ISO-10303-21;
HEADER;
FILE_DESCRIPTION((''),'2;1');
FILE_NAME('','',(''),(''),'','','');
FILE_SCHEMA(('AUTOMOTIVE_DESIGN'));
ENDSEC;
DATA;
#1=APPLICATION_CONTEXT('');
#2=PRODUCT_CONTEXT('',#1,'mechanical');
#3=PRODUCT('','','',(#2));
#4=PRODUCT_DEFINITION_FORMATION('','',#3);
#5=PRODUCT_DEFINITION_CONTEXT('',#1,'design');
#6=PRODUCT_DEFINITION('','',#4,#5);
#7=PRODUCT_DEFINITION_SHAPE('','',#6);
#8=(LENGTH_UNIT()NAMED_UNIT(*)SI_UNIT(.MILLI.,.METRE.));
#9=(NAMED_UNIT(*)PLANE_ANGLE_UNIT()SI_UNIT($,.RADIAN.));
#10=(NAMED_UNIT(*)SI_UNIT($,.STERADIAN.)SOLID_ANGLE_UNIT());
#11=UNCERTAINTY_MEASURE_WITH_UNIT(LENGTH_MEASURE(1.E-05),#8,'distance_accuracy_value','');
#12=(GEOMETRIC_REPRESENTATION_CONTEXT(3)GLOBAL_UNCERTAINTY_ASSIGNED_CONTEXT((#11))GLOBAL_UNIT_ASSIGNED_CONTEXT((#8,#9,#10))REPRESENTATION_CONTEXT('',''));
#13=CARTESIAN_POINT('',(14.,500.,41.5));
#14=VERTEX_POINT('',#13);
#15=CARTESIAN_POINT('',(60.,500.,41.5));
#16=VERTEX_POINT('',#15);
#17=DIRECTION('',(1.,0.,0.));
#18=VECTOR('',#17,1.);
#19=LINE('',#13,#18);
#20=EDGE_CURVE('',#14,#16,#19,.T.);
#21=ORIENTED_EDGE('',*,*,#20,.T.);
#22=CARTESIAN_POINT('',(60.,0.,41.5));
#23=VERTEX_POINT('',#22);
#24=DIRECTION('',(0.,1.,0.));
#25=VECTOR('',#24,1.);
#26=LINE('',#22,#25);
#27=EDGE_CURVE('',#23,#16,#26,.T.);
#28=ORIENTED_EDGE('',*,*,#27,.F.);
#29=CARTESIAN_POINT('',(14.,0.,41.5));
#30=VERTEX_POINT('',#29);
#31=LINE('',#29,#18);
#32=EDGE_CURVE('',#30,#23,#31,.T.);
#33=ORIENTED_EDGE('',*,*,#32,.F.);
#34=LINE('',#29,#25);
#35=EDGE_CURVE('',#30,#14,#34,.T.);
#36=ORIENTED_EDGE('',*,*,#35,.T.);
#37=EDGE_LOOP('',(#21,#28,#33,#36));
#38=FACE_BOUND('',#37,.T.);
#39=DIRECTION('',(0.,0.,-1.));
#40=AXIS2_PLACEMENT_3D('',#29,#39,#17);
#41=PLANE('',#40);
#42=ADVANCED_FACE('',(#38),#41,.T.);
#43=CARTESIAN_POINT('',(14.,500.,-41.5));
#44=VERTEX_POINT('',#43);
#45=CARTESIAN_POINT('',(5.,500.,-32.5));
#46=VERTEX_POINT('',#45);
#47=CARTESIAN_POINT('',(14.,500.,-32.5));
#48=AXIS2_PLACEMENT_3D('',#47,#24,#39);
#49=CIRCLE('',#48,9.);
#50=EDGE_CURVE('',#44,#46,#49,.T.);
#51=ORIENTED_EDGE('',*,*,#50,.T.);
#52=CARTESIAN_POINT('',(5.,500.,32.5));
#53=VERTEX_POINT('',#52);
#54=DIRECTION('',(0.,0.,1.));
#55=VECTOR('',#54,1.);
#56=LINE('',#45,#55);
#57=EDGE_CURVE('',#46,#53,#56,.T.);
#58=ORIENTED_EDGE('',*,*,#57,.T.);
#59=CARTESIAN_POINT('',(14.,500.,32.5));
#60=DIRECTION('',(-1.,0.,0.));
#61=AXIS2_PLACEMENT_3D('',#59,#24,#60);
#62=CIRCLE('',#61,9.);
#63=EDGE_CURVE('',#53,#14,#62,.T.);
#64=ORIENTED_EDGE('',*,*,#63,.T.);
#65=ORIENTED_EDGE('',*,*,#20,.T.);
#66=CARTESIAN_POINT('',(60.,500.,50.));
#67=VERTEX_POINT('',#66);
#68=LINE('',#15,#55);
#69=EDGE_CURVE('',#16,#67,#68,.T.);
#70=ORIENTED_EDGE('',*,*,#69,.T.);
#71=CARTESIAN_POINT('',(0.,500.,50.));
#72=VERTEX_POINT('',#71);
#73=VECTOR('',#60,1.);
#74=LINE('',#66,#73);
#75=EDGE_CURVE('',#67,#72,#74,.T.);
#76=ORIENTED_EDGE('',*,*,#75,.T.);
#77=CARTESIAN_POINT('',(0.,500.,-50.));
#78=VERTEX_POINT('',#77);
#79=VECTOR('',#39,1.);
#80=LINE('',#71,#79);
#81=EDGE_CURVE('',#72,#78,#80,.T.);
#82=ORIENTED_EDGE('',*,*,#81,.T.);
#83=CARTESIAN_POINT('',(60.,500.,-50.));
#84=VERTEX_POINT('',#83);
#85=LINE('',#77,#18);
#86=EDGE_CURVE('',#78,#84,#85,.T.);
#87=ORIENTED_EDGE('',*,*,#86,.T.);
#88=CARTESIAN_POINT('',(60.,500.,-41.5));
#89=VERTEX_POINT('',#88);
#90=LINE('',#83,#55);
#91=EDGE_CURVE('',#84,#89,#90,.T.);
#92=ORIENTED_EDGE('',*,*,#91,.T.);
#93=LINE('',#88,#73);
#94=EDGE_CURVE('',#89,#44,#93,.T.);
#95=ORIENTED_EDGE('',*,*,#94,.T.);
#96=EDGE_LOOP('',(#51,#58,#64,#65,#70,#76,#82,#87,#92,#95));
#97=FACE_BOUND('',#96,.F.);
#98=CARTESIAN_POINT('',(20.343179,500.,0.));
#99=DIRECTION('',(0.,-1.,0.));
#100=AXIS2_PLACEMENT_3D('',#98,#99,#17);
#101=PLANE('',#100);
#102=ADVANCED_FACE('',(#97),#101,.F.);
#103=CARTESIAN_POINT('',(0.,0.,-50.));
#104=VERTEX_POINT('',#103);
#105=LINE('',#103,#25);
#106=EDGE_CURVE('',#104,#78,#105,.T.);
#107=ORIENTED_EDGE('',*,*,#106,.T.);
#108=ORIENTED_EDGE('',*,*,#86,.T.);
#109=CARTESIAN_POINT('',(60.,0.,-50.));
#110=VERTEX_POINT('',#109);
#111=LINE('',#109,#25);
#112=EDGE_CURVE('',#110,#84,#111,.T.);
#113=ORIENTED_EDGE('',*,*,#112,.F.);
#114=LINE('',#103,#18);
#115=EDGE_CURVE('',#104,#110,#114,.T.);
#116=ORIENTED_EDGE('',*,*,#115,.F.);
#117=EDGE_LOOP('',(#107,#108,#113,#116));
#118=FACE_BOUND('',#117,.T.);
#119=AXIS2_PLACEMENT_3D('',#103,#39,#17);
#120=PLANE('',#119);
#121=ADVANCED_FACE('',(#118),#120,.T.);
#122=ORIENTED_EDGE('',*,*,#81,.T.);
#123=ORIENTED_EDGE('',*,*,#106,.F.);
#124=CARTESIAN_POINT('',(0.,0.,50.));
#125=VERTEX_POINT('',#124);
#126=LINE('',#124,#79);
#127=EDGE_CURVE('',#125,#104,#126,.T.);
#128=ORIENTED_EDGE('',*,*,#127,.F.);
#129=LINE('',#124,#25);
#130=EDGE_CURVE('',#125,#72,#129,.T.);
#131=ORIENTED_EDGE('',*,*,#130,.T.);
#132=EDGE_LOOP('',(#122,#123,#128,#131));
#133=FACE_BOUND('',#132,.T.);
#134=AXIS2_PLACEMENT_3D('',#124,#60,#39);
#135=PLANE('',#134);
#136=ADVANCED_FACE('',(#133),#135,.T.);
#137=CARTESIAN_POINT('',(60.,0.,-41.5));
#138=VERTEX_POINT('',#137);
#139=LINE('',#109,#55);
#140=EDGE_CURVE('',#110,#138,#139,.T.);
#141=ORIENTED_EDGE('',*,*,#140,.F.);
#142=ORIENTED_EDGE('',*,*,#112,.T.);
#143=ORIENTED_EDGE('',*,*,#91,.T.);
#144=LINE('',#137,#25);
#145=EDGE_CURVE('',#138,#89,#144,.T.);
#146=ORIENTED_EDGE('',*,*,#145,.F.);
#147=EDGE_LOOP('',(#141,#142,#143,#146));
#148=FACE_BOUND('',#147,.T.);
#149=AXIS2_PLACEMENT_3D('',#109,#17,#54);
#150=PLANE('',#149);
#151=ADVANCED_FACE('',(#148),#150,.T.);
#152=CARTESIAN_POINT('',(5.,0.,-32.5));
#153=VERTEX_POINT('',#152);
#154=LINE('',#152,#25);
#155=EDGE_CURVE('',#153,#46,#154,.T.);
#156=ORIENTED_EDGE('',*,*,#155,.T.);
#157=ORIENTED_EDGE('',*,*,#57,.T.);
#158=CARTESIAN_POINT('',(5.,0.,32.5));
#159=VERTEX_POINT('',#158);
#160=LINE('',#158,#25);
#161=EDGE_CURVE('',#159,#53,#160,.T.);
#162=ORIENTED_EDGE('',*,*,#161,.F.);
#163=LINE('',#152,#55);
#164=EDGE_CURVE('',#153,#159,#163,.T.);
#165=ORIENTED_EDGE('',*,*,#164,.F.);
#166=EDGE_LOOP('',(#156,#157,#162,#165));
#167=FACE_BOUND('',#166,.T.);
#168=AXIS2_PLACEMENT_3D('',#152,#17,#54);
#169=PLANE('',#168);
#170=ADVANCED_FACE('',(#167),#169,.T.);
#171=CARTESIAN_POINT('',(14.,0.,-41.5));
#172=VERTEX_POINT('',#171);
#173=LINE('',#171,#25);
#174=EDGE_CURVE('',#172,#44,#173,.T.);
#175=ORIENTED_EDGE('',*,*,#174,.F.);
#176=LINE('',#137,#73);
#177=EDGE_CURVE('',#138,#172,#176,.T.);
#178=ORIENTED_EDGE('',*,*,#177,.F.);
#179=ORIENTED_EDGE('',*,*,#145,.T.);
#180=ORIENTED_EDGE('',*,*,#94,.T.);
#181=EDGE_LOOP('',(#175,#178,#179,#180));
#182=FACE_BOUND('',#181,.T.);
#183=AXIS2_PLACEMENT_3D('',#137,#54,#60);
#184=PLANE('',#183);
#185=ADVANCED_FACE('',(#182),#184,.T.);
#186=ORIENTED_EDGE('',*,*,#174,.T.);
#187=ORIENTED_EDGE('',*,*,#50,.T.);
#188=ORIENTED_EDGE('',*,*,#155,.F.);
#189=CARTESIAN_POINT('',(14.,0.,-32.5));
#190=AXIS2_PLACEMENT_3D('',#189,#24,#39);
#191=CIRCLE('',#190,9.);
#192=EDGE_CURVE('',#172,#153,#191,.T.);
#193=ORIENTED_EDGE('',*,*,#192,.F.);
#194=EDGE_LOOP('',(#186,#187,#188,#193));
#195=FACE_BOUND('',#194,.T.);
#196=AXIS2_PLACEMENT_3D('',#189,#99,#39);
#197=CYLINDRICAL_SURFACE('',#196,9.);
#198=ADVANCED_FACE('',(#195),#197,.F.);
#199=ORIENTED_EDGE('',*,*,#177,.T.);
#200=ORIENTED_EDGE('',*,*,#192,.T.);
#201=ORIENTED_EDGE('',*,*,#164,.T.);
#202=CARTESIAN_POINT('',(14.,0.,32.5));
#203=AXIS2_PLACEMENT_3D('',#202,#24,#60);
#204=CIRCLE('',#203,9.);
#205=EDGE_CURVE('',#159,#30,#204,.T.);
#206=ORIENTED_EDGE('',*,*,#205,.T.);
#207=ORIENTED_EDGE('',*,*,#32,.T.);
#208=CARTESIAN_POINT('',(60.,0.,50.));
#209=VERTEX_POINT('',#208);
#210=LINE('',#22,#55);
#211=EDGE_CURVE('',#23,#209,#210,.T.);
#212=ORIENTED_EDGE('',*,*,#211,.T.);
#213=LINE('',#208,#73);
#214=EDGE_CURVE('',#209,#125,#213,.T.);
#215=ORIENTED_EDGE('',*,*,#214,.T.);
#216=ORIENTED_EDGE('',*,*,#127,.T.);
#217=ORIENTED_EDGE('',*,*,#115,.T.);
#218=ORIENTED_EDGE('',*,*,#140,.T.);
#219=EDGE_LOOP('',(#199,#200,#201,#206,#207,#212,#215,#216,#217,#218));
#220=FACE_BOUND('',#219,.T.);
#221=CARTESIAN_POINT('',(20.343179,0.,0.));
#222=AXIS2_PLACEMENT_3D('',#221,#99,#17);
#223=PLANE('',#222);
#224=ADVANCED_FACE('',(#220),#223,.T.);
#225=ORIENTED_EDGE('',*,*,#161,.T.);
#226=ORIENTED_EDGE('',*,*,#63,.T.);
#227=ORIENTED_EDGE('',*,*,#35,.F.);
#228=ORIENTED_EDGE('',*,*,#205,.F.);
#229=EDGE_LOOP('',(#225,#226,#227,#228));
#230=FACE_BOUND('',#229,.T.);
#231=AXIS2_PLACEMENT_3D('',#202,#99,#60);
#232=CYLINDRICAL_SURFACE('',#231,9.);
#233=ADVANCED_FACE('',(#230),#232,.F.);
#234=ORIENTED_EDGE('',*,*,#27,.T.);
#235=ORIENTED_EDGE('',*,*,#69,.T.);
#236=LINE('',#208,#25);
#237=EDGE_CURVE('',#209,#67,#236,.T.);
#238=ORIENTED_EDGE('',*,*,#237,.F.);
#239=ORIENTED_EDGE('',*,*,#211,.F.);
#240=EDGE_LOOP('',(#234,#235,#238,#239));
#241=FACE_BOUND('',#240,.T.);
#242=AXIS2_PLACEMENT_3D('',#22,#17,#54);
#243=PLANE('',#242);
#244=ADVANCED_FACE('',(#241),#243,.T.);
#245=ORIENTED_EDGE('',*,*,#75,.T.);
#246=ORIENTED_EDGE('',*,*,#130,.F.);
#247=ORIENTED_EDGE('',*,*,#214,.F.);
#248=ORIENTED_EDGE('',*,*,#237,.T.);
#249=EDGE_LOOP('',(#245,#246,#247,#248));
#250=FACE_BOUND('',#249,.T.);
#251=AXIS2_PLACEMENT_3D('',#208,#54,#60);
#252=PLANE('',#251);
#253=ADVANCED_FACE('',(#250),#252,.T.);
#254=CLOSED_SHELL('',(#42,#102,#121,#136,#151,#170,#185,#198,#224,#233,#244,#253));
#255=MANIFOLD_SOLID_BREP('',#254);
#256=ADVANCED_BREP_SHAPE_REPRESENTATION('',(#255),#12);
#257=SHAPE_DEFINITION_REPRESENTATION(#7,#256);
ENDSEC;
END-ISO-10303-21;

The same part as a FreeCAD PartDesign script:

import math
import FreeCAD as App
import Part
import Sketcher

doc = App.newDocument("Part")
body = doc.addObject("PartDesign::Body", "Body")

# Sketch on XZ plane
sketch1 = body.newObject("Sketcher::SketchObject", "Sketch")
sketch1.AttachmentSupport = (doc.getObject("XZ_Plane"), [""])
sketch1.MapMode = "FlatFace"
sketch1.addGeometry(Part.LineSegment(App.Vector(0, 50, 0), App.Vector(0, -50, 0)), False)
sketch1.addGeometry(Part.LineSegment(App.Vector(0, -50, 0), App.Vector(60, -50, 0)), False)
sketch1.addGeometry(Part.LineSegment(App.Vector(60, -50, 0), App.Vector(60, -42, 0)), False)
sketch1.addGeometry(Part.LineSegment(App.Vector(60, -42, 0), App.Vector(14, -42, 0)), False)
sketch1.addGeometry(Part.ArcOfCircle(Part.Circle(App.Vector(14, -32, 0), App.Vector(0, 0, 1), 9), math.radians(180), math.radians(270)), False)
sketch1.addGeometry(Part.LineSegment(App.Vector(5, -32, 0), App.Vector(5, 32, 0)), False)
sketch1.addGeometry(Part.ArcOfCircle(Part.Circle(App.Vector(14, 32, 0), App.Vector(0, 0, 1), 9), math.radians(90), math.radians(180)), False)
sketch1.addGeometry(Part.LineSegment(App.Vector(14, 42, 0), App.Vector(60, 42, 0)), False)
sketch1.addGeometry(Part.LineSegment(App.Vector(60, 42, 0), App.Vector(60, 50, 0)), False)
sketch1.addGeometry(Part.LineSegment(App.Vector(60, 50, 0), App.Vector(0, 50, 0)), False)
sketch1.addConstraint(Sketcher.Constraint("Coincident", 0, 2, 1, 1))
sketch1.addConstraint(Sketcher.Constraint("Coincident", 1, 2, 2, 1))
sketch1.addConstraint(Sketcher.Constraint("Coincident", 2, 2, 3, 1))
sketch1.addConstraint(Sketcher.Constraint("Tangent", 3, 2, 4, 2))
sketch1.addConstraint(Sketcher.Constraint("Tangent", 4, 1, 5, 1))
sketch1.addConstraint(Sketcher.Constraint("Tangent", 5, 2, 6, 2))
sketch1.addConstraint(Sketcher.Constraint("Tangent", 6, 1, 7, 1))
sketch1.addConstraint(Sketcher.Constraint("Coincident", 7, 2, 8, 1))
sketch1.addConstraint(Sketcher.Constraint("Coincident", 8, 2, 9, 1))
sketch1.addConstraint(Sketcher.Constraint("Coincident", 9, 2, 0, 1))
sketch1.addConstraint(Sketcher.Constraint("Vertical", 0))
sketch1.addConstraint(Sketcher.Constraint("Horizontal", 1))
sketch1.addConstraint(Sketcher.Constraint("Vertical", 2))
sketch1.addConstraint(Sketcher.Constraint("Horizontal", 3))
sketch1.addConstraint(Sketcher.Constraint("Vertical", 5))
sketch1.addConstraint(Sketcher.Constraint("Horizontal", 7))
sketch1.addConstraint(Sketcher.Constraint("Vertical", 8))
sketch1.addConstraint(Sketcher.Constraint("Horizontal", 9))
sketch1.addConstraint(Sketcher.Constraint("Equal", 4, 6))
sketch1.addConstraint(Sketcher.Constraint("Symmetric", 0, 2, 9, 2, -1, 1))
sketch1.addConstraint(Sketcher.Constraint("Symmetric", 2, 2, 7, 2, -1))
sketch1.addConstraint(Sketcher.Constraint("Radius", 4, 9.0))
sketch1.addConstraint(Sketcher.Constraint("DistanceX", 1, 1, 1, 2, 60.0))
sketch1.addConstraint(Sketcher.Constraint("DistanceX", 3, 2, 3, 1, 46.0))
sketch1.addConstraint(Sketcher.Constraint("DistanceY", 0, 2, 0, 1, 100.0))
sketch1.addConstraint(Sketcher.Constraint("DistanceY", 5, 1, 5, 2, 65.0))
pad1 = body.newObject("PartDesign::Pad", "Pad")
pad1.Profile = sketch1
pad1.Length = 500
pad1.Reversed = True

doc.recompute()
